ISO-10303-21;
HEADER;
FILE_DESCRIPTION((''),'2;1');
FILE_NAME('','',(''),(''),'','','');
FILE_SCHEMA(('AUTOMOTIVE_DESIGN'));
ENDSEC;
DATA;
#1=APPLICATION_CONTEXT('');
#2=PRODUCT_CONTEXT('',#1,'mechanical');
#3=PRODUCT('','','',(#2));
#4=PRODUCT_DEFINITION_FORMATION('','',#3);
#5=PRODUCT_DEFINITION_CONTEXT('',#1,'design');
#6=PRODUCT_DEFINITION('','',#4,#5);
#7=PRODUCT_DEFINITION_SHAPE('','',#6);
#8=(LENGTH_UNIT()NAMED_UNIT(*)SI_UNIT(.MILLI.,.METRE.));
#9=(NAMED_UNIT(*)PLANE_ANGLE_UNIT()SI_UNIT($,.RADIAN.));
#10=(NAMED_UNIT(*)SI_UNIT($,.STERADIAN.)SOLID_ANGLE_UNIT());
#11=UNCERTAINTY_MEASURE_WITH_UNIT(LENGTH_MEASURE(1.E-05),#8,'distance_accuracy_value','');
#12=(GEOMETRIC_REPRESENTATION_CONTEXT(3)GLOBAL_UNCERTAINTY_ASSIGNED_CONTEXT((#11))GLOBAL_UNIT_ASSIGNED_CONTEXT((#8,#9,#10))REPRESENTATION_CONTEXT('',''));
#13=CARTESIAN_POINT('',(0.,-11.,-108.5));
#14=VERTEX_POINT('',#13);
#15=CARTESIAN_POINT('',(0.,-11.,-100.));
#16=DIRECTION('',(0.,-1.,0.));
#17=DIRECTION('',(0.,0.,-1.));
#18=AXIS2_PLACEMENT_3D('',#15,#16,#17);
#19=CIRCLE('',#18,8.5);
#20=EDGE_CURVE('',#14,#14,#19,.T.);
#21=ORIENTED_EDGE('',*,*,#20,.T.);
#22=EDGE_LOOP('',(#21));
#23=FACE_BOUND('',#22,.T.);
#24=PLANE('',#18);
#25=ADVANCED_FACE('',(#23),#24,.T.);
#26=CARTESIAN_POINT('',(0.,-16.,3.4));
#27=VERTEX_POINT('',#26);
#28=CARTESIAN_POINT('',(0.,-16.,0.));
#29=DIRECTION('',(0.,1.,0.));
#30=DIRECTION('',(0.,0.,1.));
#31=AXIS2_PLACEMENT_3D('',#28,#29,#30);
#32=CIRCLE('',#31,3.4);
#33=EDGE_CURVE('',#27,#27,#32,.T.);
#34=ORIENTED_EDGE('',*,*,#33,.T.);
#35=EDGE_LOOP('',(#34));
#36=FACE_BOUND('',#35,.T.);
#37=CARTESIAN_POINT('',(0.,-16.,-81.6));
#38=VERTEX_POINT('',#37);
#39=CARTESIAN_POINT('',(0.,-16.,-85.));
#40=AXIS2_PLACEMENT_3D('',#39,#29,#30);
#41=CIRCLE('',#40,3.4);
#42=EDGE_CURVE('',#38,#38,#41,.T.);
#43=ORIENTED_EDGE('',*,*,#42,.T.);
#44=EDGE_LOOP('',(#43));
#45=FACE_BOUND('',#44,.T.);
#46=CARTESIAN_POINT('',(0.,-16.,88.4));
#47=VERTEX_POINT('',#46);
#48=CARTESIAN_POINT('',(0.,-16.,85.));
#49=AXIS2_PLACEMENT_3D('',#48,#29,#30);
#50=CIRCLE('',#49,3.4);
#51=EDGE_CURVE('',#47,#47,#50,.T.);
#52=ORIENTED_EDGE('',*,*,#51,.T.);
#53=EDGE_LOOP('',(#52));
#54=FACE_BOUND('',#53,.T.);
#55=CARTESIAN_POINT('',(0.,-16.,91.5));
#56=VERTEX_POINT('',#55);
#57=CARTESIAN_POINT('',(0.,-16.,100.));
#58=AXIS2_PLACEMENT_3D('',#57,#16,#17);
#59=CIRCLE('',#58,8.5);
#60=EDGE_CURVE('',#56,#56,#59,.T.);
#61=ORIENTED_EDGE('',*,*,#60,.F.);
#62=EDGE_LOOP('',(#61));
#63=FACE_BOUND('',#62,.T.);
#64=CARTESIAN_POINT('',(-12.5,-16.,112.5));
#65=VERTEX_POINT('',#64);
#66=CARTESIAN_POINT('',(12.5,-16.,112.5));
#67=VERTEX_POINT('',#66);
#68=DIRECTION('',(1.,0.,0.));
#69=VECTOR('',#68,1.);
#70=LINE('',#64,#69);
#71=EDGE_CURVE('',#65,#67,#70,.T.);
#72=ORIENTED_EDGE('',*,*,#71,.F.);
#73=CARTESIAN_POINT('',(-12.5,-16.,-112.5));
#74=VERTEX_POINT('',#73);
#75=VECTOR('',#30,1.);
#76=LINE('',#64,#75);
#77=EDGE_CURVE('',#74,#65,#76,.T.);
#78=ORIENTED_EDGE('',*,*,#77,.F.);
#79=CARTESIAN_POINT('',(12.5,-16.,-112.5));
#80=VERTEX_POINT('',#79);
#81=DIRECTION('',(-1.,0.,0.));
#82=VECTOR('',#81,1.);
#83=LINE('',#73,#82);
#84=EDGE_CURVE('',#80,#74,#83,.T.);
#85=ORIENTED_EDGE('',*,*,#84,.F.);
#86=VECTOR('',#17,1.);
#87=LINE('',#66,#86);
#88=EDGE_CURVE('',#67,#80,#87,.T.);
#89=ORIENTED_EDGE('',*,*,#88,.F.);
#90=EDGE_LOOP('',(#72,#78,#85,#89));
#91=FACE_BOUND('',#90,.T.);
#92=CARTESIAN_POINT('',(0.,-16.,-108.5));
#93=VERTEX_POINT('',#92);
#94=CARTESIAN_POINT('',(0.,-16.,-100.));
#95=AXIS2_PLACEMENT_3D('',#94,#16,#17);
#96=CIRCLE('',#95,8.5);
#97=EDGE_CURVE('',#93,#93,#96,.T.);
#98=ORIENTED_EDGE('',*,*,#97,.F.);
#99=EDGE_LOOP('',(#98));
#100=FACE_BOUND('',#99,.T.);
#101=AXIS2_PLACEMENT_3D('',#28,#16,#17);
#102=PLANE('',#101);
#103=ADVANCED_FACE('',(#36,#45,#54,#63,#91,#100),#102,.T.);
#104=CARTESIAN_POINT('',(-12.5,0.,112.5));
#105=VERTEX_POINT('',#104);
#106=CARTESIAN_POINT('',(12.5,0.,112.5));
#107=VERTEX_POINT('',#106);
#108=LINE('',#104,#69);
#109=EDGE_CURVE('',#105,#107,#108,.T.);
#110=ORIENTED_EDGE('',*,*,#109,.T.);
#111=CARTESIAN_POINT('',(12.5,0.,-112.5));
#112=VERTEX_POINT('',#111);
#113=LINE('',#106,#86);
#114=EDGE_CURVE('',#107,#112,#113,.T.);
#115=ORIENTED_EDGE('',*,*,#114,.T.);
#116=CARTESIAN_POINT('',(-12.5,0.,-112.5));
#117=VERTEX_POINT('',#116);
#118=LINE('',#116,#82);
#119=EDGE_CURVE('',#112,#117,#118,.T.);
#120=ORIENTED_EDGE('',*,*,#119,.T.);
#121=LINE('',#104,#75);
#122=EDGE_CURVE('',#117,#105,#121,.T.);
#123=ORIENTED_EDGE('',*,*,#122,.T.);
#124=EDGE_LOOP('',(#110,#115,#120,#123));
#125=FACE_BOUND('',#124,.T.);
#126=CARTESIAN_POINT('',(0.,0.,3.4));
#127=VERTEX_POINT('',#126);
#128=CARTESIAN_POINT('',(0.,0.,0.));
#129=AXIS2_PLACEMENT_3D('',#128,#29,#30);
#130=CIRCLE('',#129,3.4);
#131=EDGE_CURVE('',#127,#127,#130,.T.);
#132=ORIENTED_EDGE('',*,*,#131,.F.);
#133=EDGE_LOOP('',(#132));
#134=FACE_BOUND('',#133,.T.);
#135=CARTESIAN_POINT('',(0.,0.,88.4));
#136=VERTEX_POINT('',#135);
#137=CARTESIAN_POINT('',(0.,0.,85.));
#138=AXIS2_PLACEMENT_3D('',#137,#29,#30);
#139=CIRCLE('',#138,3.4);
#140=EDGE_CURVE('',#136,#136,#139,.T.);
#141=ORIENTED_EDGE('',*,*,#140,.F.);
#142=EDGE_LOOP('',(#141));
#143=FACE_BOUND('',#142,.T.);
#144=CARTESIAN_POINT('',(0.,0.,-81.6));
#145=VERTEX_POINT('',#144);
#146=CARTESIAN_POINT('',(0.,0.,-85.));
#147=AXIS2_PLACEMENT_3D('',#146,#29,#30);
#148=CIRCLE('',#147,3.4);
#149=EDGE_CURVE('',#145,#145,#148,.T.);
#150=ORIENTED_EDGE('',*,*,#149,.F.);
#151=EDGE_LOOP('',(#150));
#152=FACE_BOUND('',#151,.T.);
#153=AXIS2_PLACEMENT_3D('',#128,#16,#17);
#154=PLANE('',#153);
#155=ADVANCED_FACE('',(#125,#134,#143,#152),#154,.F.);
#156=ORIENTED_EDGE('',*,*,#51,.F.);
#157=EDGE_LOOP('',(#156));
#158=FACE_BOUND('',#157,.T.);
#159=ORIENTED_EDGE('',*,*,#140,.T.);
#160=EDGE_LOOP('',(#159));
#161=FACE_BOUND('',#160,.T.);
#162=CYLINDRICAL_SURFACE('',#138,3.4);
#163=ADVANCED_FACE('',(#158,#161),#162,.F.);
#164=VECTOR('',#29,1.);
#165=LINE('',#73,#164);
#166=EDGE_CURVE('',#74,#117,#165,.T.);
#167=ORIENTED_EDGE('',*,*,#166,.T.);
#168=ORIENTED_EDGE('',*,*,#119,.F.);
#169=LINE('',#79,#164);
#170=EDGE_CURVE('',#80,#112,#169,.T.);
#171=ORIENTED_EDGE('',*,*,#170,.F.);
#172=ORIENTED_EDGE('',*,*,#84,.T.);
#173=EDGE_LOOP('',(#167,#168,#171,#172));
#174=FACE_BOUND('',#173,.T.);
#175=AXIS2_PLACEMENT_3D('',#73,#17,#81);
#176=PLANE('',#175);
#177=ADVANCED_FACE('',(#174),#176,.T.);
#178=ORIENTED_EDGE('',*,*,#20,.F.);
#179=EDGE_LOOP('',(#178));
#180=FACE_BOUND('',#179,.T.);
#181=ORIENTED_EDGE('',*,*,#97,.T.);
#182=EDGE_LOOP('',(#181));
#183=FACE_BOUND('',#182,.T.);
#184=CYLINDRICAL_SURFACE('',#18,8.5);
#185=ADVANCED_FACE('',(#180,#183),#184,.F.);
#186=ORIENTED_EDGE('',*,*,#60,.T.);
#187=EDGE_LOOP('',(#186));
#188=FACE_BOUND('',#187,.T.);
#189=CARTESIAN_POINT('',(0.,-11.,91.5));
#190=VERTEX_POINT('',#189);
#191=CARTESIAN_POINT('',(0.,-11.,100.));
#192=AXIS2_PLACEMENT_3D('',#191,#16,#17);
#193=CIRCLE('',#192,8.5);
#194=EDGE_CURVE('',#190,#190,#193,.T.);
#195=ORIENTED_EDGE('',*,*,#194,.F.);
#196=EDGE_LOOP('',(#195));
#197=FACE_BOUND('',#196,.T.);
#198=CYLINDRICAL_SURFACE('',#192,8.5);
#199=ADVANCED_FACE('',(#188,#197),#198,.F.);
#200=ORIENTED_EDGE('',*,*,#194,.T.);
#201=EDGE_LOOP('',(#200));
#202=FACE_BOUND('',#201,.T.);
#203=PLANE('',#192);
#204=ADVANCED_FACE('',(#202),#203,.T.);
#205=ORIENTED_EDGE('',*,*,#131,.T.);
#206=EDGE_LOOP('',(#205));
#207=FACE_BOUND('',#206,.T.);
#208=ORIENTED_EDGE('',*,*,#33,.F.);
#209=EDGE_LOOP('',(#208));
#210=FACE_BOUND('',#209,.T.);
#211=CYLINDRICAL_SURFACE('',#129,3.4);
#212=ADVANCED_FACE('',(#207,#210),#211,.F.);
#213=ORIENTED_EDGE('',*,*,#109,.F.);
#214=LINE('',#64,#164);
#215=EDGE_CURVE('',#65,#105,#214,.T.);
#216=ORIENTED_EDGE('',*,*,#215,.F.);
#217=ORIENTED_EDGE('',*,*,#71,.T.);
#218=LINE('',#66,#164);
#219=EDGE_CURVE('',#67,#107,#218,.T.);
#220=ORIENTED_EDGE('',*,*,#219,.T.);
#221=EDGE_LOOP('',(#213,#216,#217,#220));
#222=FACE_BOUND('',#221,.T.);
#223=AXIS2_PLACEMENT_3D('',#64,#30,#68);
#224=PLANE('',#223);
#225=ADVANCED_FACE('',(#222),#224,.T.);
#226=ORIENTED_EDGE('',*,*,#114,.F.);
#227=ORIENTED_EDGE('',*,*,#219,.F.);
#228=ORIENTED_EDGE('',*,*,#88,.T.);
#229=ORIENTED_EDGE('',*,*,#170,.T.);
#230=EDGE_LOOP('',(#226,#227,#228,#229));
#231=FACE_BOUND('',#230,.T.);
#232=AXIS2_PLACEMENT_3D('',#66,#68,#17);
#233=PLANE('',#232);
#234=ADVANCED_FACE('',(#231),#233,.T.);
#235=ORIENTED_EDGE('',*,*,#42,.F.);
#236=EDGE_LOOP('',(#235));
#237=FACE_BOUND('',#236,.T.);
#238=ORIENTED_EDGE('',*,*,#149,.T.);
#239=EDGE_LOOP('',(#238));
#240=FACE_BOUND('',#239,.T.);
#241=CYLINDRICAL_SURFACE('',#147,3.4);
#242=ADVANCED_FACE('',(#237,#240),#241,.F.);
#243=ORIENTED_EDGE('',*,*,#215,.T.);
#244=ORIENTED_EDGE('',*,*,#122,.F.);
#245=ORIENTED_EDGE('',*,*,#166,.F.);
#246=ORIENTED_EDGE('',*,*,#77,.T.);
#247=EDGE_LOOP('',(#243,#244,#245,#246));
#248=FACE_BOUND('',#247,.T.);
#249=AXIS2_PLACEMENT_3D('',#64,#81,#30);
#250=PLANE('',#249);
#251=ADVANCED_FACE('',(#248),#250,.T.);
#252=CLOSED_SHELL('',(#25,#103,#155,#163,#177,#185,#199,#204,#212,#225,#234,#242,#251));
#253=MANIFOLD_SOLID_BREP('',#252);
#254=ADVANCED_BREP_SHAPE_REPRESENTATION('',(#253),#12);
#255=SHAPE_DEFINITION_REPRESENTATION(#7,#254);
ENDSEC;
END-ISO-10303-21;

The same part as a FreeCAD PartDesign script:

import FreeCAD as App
import Part
import Sketcher
Q = App.Units.Quantity


def add_polygon(sketch, points):
    """Adds a closed chain of lines whose ends are joined by coincident constraints."""
    first, n = sketch.GeometryCount, len(points)
    for a, b in zip(points, points[1:] + points[:1]):
        sketch.addGeometry(Part.LineSegment(App.Vector(*a, 0), App.Vector(*b, 0)), False)
    for i in range(n):
        sketch.addConstraint(Sketcher.Constraint("Coincident", first + i, 2, first + (i + 1) % n, 1))

doc = App.newDocument("Part")
body = doc.addObject("PartDesign::Body", "Body")

sketch1 = doc.addObject("Sketcher::SketchObject", "Sketch")
body.addObject(sketch1)
sketch1.AttachmentSupport = (doc.XZ_Plane, [""])
sketch1.MapMode = "FlatFace"
add_polygon(sketch1, [(-12, -112), (-12, 112), (12, 112), (12, -112)])
sketch1.addConstraint([
    Sketcher.Constraint("Vertical", 0),
    Sketcher.Constraint("Horizontal", 1),
    Sketcher.Constraint("Vertical", 2),
    Sketcher.Constraint("Horizontal", 3),
    Sketcher.Constraint("Symmetric", 0, 2, 2, 2, -1, 1),
    Sketcher.Constraint("DistanceX", 1, 1, 1, 2, Q("25 mm")),
    Sketcher.Constraint("DistanceY", 0, 1, 0, 2, Q("225 mm")),
])
pad1 = doc.addObject("PartDesign::Pad", "Pad")
body.addObject(pad1)
pad1.Profile = sketch1
pad1.Length = 16

sketch2 = doc.addObject("Sketcher::SketchObject", "Sketch001")
body.addObject(sketch2)
sketch2.AttachmentSupport = (doc.XZ_Plane, [""])
sketch2.MapMode = "FlatFace"
sketch2.AttachmentOffset = App.Placement(App.Vector(0, 0, 16), App.Rotation())
sketch2.addGeometry([
    Part.Circle(App.Vector(0, 100, 0), App.Vector(0, 0, 1), 8),
    Part.Circle(App.Vector(0, -100, 0), App.Vector(0, 0, 1), 8),
], False)
sketch2.addConstraint([
    Sketcher.Constraint("Equal", 0, 1),
    Sketcher.Constraint("Symmetric", 0, 3, 1, 3, -1, 1),
    Sketcher.Constraint("PointOnObject", 0, 3, -2),
    Sketcher.Constraint("Diameter", 0, Q("17 mm")),
    Sketcher.Constraint("DistanceY", -1, 1, 0, 3, Q("100 mm")),
])
pocket1 = doc.addObject("PartDesign::Pocket", "Pocket")
body.addObject(pocket1)
pocket1.Profile = sketch2
pocket1.Length = 5

sketch3 = doc.addObject("Sketcher::SketchObject", "Sketch002")
body.addObject(sketch3)
sketch3.AttachmentSupport = (doc.XZ_Plane, [""])
sketch3.MapMode = "FlatFace"
sketch3.addGeometry([
    Part.Circle(App.Vector(0, -85, 0), App.Vector(0, 0, 1), 3.4),
    Part.Circle(App.Vector(0, 0, 0), App.Vector(0, 0, 1), 3.4),
    Part.Circle(App.Vector(0, 85, 0), App.Vector(0, 0, 1), 3.4),
], False)
sketch3.addConstraint([
    Sketcher.Constraint("Coincident", 1, 3, -1, 1),
    Sketcher.Constraint("Equal", 0, 1),
    Sketcher.Constraint("Equal", 1, 2),
    Sketcher.Constraint("Symmetric", 0, 3, 2, 3, -1, 1),
    Sketcher.Constraint("PointOnObject", 0, 3, -2),
    Sketcher.Constraint("Diameter", 0, Q("6.8 mm")),
    Sketcher.Constraint("DistanceY", 0, 3, -1, 1, Q("85 mm")),
])
doc.recompute()
hole = doc.addObject("PartDesign::Hole", "Hole")
body.addObject(hole)
hole.Profile = sketch3
hole.ThreadType = "None"
hole.Diameter = 6.8
hole.DepthType = "ThroughAll"
hole.Reversed = True

doc.recompute()
